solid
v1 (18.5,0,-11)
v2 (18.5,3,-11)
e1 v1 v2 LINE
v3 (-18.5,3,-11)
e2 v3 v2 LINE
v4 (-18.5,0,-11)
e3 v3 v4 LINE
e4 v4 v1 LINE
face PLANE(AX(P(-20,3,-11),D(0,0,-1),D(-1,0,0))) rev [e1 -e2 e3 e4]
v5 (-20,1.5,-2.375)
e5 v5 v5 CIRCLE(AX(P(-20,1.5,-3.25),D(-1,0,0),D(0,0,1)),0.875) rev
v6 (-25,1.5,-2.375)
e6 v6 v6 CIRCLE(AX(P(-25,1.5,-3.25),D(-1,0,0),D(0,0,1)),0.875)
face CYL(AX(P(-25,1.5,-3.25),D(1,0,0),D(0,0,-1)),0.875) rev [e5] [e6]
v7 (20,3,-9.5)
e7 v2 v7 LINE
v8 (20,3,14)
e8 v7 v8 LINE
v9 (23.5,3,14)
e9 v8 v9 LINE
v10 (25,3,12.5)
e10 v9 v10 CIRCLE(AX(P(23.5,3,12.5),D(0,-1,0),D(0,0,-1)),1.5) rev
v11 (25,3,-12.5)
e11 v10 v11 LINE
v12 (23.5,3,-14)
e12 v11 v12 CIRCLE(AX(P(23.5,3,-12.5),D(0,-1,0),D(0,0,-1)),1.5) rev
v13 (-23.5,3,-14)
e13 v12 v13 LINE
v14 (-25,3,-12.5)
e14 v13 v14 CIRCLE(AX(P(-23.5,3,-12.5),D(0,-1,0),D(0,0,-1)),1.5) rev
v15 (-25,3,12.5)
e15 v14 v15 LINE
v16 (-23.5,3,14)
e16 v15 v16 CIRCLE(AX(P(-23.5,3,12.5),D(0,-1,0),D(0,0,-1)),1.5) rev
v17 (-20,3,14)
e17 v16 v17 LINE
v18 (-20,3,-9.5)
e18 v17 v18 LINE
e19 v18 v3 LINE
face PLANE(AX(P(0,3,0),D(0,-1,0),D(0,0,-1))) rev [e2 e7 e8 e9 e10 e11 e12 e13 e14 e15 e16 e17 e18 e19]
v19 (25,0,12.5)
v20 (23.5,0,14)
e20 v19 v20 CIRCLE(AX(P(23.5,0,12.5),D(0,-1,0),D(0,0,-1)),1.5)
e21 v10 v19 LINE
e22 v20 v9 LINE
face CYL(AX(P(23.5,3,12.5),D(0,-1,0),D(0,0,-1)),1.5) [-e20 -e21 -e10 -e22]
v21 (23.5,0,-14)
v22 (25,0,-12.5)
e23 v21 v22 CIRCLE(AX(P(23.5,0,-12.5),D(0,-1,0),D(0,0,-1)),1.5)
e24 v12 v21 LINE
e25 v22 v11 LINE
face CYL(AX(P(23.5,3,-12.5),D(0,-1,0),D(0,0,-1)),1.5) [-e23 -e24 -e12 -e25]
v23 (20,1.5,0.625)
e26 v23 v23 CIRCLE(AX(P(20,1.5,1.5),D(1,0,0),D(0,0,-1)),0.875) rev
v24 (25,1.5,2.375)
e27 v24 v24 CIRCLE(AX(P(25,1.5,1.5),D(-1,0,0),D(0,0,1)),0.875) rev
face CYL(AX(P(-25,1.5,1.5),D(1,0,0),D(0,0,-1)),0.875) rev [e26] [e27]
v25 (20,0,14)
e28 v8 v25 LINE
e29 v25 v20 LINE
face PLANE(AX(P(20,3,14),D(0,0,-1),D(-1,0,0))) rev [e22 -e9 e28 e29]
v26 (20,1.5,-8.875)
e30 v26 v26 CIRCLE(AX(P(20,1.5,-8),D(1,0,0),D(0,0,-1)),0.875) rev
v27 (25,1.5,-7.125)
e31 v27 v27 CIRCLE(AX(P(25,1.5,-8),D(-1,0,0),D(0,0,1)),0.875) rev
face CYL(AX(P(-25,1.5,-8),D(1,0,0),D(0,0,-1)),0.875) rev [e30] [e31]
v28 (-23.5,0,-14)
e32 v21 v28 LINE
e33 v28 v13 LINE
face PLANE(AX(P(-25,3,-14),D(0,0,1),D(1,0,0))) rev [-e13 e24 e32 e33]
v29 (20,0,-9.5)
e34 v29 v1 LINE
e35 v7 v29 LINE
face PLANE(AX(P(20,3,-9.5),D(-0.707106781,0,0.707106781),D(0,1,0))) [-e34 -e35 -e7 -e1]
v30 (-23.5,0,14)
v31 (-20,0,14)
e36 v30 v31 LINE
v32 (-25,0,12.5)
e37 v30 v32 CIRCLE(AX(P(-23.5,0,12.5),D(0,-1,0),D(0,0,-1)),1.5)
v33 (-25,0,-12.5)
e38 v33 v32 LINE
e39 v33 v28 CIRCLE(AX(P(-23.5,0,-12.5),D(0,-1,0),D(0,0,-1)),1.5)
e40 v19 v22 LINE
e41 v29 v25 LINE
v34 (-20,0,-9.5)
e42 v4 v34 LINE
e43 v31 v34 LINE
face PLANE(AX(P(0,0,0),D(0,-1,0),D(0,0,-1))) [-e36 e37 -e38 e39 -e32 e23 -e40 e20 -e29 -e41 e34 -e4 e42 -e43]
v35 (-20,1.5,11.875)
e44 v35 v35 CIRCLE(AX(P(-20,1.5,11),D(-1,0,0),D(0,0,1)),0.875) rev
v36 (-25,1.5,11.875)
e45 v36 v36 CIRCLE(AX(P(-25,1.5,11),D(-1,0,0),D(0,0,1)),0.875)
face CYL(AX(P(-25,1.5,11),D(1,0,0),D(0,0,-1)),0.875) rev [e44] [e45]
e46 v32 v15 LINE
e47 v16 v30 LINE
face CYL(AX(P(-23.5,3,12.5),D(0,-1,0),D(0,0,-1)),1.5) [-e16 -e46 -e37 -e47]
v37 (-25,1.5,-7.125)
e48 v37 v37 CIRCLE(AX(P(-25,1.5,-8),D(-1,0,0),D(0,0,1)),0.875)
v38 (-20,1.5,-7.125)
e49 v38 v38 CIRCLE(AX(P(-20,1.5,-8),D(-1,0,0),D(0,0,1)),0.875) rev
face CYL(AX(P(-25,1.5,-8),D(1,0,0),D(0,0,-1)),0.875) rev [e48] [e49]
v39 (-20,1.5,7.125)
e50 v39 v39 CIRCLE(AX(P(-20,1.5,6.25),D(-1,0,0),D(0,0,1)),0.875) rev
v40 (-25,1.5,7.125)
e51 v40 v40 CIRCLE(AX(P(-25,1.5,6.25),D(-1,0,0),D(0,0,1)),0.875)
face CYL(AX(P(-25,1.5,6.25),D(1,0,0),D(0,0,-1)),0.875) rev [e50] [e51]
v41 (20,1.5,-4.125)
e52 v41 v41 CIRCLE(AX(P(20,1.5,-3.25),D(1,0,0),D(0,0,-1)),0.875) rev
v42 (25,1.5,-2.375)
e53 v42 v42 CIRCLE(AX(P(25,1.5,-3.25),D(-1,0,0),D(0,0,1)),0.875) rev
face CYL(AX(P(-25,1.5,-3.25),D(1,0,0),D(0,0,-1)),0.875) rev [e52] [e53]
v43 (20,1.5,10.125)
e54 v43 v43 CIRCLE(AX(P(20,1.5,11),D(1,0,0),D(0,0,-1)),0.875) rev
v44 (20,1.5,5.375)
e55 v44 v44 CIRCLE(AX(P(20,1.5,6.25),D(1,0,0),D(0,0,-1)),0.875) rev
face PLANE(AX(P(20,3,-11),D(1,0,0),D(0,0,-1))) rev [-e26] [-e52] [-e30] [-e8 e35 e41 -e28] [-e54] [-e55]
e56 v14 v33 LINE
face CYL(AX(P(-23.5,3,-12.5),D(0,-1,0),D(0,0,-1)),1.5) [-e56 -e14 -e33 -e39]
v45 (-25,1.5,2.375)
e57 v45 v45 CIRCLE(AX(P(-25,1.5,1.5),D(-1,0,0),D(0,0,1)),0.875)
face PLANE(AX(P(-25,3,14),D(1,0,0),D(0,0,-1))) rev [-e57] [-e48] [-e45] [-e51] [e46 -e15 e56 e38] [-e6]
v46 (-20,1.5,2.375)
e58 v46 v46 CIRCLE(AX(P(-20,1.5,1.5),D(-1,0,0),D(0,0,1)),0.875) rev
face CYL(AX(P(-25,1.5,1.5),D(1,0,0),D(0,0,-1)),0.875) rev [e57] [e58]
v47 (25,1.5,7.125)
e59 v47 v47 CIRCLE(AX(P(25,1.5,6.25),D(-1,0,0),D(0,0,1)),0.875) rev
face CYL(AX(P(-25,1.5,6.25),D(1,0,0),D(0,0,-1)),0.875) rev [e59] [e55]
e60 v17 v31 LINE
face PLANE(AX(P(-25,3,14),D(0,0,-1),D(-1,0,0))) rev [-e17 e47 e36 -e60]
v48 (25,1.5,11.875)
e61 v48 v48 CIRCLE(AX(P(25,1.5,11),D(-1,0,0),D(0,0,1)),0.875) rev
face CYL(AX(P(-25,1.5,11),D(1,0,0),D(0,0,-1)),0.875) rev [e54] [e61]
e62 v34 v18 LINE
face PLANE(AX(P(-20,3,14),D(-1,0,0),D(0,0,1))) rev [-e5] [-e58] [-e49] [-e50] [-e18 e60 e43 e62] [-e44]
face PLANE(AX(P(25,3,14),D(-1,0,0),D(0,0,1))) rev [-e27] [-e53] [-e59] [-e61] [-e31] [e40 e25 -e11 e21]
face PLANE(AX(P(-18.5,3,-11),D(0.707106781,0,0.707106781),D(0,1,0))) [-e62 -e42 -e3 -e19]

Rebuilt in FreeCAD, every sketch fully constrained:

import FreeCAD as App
import Part
import Sketcher

V = App.Vector


def edges_at(feature, points):
    """Names of the edges that pass closest to the given points."""
    edges = feature.Shape.Edges
    near = lambda p: min(range(len(edges)), key=lambda i: edges[i].distToShape(Part.Vertex(*p))[0])
    return sorted({f"Edge{near(p) + 1}" for p in points})

doc = App.newDocument("Part")
params = doc.addObject("Spreadsheet::Sheet", "Params")
for row, (alias, value) in enumerate([
    ("sketch1_width", "5 mm"),
    ("sketch1_width2", "40 mm"),
    ("sketch1_height", "25 mm"),
    ("sketch1_height2", "28 mm"),
    ("pad1_length", "3 mm"),
    ("sketch2_diameter", "1.75 mm"),
    ("fillet_radius", "1.5 mm"),
    ("chamfer_size", "1.5 mm"),
], start=1):
    params.set(f"A{row}", alias)
    params.set(f"B{row}", "=" + value)
    params.setAlias(f"B{row}", alias)

body = doc.addObject("PartDesign::Body", "Body")

# Sketch on XZ plane
sketch1 = doc.addObject("Sketcher::SketchObject", "Sketch")
body.addObject(sketch1)
sketch1.AttachmentSupport = (doc.XZ_Plane, [""])
sketch1.MapMode = "FlatFace"
sketch1.addGeometry(Part.LineSegment(V(-25, 14, 0), V(-20, 14, 0)), False)
sketch1.addGeometry(Part.LineSegment(V(-20, 14, 0), V(-20, -11, 0)), False)
sketch1.addGeometry(Part.LineSegment(V(-20, -11, 0), V(20, -11, 0)), False)
sketch1.addGeometry(Part.LineSegment(V(20, -11, 0), V(20, 14, 0)), False)
sketch1.addGeometry(Part.LineSegment(V(20, 14, 0), V(25, 14, 0)), False)
sketch1.addGeometry(Part.LineSegment(V(25, 14, 0), V(25, -14, 0)), False)
sketch1.addGeometry(Part.LineSegment(V(25, -14, 0), V(-25, -14, 0)), False)
sketch1.addGeometry(Part.LineSegment(V(-25, -14, 0), V(-25, 14, 0)), False)
sketch1.addConstraint(Sketcher.Constraint("Coincident", 0, 2, 1, 1))
sketch1.addConstraint(Sketcher.Constraint("Coincident", 1, 2, 2, 1))
sketch1.addConstraint(Sketcher.Constraint("Coincident", 2, 2, 3, 1))
sketch1.addConstraint(Sketcher.Constraint("Coincident", 3, 2, 4, 1))
sketch1.addConstraint(Sketcher.Constraint("Coincident", 4, 2, 5, 1))
sketch1.addConstraint(Sketcher.Constraint("Coincident", 5, 2, 6, 1))
sketch1.addConstraint(Sketcher.Constraint("Coincident", 6, 2, 7, 1))
sketch1.addConstraint(Sketcher.Constraint("Coincident", 7, 2, 0, 1))
sketch1.addConstraint(Sketcher.Constraint("Horizontal", 0))
sketch1.addConstraint(Sketcher.Constraint("Vertical", 1))
sketch1.addConstraint(Sketcher.Constraint("Horizontal", 2))
sketch1.addConstraint(Sketcher.Constraint("Vertical", 3))
sketch1.addConstraint(Sketcher.Constraint("Horizontal", 4))
sketch1.addConstraint(Sketcher.Constraint("Vertical", 5))
sketch1.addConstraint(Sketcher.Constraint("Horizontal", 6))
sketch1.addConstraint(Sketcher.Constraint("Vertical", 7))
sketch1.addConstraint(Sketcher.Constraint("Symmetric", 4, 2, 6, 2, -1, 1))
sketch1.addConstraint(Sketcher.Constraint("Symmetric", 0, 2, 3, 2, -2))
sketch1.addConstraint(Sketcher.Constraint("DistanceX", 0, 1, 0, 2, 5.0))
sketch1.addConstraint(Sketcher.Constraint("DistanceX", 2, 1, 2, 2, 40.0))
sketch1.addConstraint(Sketcher.Constraint("DistanceY", 1, 2, 1, 1, 25.0))
sketch1.addConstraint(Sketcher.Constraint("DistanceY", 5, 2, 5, 1, 28.0))
sketch1.setExpression("Constraints[18]", "Params.sketch1_width")
sketch1.setExpression("Constraints[19]", "Params.sketch1_width2")
sketch1.setExpression("Constraints[20]", "Params.sketch1_height")
sketch1.setExpression("Constraints[21]", "Params.sketch1_height2")
pad1 = doc.addObject("PartDesign::Pad", "Pad")
body.addObject(pad1)
pad1.Profile = sketch1
pad1.setExpression("Length", "Params.pad1_length")
pad1.Reversed = True

# Sketch on YZ plane
sketch2 = doc.addObject("Sketcher::SketchObject", "Sketch001")
body.addObject(sketch2)
sketch2.AttachmentSupport = (doc.YZ_Plane, [""])
sketch2.MapMode = "FlatFace"
sketch2.AttachmentOffset = App.Placement(V(0, 0, 25), App.Rotation())
sketch2.addGeometry(Part.Circle(V(1.5, 11, 0), V(0, 0, 1), 0.9), False)
sketch2.addGeometry(Part.Circle(V(1.5, 6.2, 0), V(0, 0, 1), 0.9), False)
sketch2.addGeometry(Part.Circle(V(1.5, 1.5, 0), V(0, 0, 1), 0.9), False)
sketch2.addGeometry(Part.Circle(V(1.5, -3.2, 0), V(0, 0, 1), 0.9), False)
sketch2.addGeometry(Part.Circle(V(1.5, -8, 0), V(0, 0, 1), 0.9), False)
sketch2.addConstraint(Sketcher.Constraint("Equal", 0, 1))
sketch2.addConstraint(Sketcher.Constraint("Equal", 1, 2))
sketch2.addConstraint(Sketcher.Constraint("Equal", 2, 3))
sketch2.addConstraint(Sketcher.Constraint("Equal", 3, 4))
sketch2.addConstraint(Sketcher.Constraint("Vertical", 0, 3, 1, 3))
sketch2.addConstraint(Sketcher.Constraint("Vertical", 1, 3, 2, 3))
sketch2.addConstraint(Sketcher.Constraint("Vertical", 2, 3, 3, 3))
sketch2.addConstraint(Sketcher.Constraint("Vertical", 3, 3, 4, 3))
sketch2.addConstraint(Sketcher.Constraint("Diameter", 0, 1.75))
sketch2.addConstraint(Sketcher.Constraint("DistanceY", -1, 1, 0, 3, 11.0))
sketch2.addConstraint(Sketcher.Constraint("DistanceY", 4, 3, -1, 1, 8.0))
sketch2.addConstraint(Sketcher.Constraint("DistanceX", -1, 1, 0, 3, 1.5))
sketch2.addConstraint(Sketcher.Constraint("DistanceY", -1, 1, 2, 3, 1.5))
sketch2.addConstraint(Sketcher.Constraint("DistanceY", 3, 3, 1, 3, 9.5))
sketch2.addConstraint(Sketcher.Constraint("DistanceY", -1, 1, 1, 3, 6.25))
sketch2.setExpression("Constraints[8]", "Params.sketch2_diameter")
pocket1 = doc.addObject("PartDesign::Pocket", "Pocket")
body.addObject(pocket1)
pocket1.Profile = sketch2
pocket1.Type = "ThroughAll"
pocket1.Midplane = True
doc.recompute()

fillet = doc.addObject("PartDesign::Fillet", "Fillet")
body.addObject(fillet)
fillet.Base = (pocket1, edges_at(pocket1, [
    (25, 1.5, 14),
    (-25, 1.5, 14),
    (-25, 1.5, -14),
    (25, 1.5, -14),
]))
fillet.setExpression("Radius", "Params.fillet_radius")
doc.recompute()

chamfer = doc.addObject("PartDesign::Chamfer", "Chamfer")
body.addObject(chamfer)
chamfer.Base = (fillet, edges_at(fillet, [(20, 1.5, -11), (-20, 1.5, -11)]))
chamfer.setExpression("Size", "Params.chamfer_size")

doc.recompute()
